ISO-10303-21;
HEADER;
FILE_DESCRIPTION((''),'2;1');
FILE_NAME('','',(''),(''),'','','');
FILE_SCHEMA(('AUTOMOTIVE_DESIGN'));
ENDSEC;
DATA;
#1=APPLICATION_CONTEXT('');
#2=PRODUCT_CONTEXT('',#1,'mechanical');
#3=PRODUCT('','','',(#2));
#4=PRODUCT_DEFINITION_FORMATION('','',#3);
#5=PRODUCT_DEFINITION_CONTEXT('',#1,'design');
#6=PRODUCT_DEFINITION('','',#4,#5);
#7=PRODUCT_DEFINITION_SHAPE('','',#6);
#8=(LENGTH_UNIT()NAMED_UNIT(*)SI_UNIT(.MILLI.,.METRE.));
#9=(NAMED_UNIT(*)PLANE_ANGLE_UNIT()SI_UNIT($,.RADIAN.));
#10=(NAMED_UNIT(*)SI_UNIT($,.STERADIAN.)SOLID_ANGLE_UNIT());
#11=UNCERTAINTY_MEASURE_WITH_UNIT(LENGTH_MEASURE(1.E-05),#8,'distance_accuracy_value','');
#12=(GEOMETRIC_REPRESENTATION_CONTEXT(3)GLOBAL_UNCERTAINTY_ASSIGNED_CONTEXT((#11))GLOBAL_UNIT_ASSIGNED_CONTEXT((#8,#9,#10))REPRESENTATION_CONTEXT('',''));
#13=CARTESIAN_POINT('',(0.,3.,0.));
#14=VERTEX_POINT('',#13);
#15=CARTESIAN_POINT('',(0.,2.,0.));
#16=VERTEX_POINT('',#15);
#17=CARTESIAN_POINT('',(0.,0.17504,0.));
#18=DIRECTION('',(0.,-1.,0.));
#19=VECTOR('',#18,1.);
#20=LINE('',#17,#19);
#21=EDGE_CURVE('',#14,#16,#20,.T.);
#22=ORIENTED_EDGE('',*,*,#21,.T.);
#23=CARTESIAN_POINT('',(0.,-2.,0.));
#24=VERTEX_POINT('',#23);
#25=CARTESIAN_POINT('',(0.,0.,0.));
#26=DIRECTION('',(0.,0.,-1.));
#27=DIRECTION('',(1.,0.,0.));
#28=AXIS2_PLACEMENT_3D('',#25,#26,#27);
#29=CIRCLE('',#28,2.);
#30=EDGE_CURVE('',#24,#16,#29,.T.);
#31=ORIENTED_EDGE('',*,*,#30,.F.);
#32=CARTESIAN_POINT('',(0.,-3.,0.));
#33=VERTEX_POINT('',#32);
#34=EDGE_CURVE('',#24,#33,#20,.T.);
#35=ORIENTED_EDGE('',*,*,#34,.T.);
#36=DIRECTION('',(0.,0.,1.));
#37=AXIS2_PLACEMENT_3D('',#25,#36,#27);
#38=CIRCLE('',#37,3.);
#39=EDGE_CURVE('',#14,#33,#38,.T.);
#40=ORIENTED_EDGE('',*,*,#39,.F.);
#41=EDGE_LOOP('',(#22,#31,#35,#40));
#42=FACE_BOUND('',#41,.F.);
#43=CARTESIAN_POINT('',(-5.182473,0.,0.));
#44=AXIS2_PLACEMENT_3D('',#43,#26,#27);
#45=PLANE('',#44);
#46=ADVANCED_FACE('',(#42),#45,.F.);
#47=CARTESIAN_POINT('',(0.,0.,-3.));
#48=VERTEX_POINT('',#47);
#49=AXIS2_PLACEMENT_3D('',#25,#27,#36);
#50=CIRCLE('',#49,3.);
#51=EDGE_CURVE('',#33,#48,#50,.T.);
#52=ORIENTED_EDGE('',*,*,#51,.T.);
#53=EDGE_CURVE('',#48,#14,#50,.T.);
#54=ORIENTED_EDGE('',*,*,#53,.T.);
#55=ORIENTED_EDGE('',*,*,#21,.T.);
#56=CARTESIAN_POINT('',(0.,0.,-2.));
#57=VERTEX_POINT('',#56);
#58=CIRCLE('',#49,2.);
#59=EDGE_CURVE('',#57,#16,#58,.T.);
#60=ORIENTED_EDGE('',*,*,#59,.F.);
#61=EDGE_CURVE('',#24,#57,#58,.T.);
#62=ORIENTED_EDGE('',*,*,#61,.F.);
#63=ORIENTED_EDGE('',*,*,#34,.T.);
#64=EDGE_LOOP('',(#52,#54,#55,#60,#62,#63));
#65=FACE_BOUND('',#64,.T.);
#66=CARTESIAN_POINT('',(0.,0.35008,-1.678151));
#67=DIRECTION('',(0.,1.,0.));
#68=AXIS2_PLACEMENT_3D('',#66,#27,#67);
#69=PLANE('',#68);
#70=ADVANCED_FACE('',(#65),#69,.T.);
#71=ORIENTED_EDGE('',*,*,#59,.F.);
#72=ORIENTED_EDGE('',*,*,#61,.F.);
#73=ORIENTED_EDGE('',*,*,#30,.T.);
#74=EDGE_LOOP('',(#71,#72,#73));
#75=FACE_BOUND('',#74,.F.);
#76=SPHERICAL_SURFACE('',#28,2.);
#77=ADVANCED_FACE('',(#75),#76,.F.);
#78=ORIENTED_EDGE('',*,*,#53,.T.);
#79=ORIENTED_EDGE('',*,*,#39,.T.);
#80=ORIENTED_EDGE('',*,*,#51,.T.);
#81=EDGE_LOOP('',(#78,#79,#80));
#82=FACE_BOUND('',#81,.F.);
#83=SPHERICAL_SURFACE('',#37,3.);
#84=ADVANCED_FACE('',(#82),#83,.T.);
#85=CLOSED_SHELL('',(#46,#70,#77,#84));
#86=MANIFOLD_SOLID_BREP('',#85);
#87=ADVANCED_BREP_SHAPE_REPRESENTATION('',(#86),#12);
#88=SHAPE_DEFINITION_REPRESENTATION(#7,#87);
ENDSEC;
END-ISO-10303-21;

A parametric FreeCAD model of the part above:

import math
import FreeCAD as App
import Part
import Sketcher

V = App.Vector
Q = App.Units.Quantity


def add_polygon(sketch, points):
    """Adds a closed chain of lines whose ends are joined by coincident constraints."""
    first, n = sketch.GeometryCount, len(points)
    for a, b in zip(points, points[1:] + points[:1]):
        sketch.addGeometry(Part.LineSegment(App.Vector(*a, 0), App.Vector(*b, 0)), False)
    for i in range(n):
        sketch.addConstraint(Sketcher.Constraint("Coincident", first + i, 2, first + (i + 1) % n, 1))

doc = App.newDocument("Part")
params = doc.addObject("Spreadsheet::Sheet", "Params")
for row, (alias, value) in enumerate([
    ("sketch1_radius", "3 mm"),
    ("sketch1_radius2", "2 mm"),
    ("revolution_angle", "360 deg"),
    ("pocket1_length", "25 mm"),
    ("pocket2_length", "25 mm"),
], start=1):
    params.set(f"A{row}", alias)
    params.set(f"B{row}", "=" + value)
    params.setAlias(f"B{row}", alias)

body = doc.addObject("PartDesign::Body", "Body")

sketch1 = body.newObject("Sketcher::SketchObject", "Sketch")
sketch1.AttachmentSupport = (doc.getObject("XZ_Plane"), [""])
sketch1.MapMode = "FlatFace"
sketch1.addGeometry([
    Part.LineSegment(V(0, -2, 0), V(0, -3, 0)),
    Part.ArcOfCircle(Part.Circle(V(0, 0, 0), V(0, 0, 1), 3), math.radians(-90), math.radians(90)),
    Part.LineSegment(V(0, 3, 0), V(0, 2, 0)),
    Part.ArcOfCircle(Part.Circle(V(0, 0, 0), V(0, 0, 1), 2), math.radians(-90), math.radians(90)),
], False)
sketch1.addConstraint([
    Sketcher.Constraint("Coincident", 0, 2, 1, 1),
    Sketcher.Constraint("Coincident", 1, 2, 2, 1),
    Sketcher.Constraint("Coincident", 2, 2, 3, 2),
    Sketcher.Constraint("Coincident", 3, 1, 0, 1),
    Sketcher.Constraint("Vertical", 0),
    Sketcher.Constraint("Vertical", 2),
    Sketcher.Constraint("Coincident", 1, 3, -1, 1),
    Sketcher.Constraint("Coincident", 3, 3, -1, 1),
    Sketcher.Constraint("PointOnObject", 0, 2, -2),
    Sketcher.Constraint("PointOnObject", 1, 2, -2),
    Sketcher.Constraint("Radius", 1, Q("3 mm")),
    Sketcher.Constraint("Radius", 3, Q("2 mm")),
])
sketch1.setExpression("Constraints[10]", "Params.sketch1_radius")
sketch1.setExpression("Constraints[11]", "Params.sketch1_radius2")
revolution = body.newObject("PartDesign::Revolution", "Revolution")
revolution.Profile = sketch1
revolution.ReferenceAxis = (sketch1, ["V_Axis"])
revolution.setExpression("Angle", "Params.revolution_angle")

sketch2 = body.newObject("Sketcher::SketchObject", "Sketch001")
sketch2.AttachmentSupport = (doc.getObject("XZ_Plane"), [""])
sketch2.MapMode = "FlatFace"
add_polygon(sketch2, [(-5.2, 3.6), (-5.2, 0), (6.5, 0), (6.5, 3.6)])
sketch2.addConstraint([
    Sketcher.Constraint("Vertical", 0),
    Sketcher.Constraint("Horizontal", 1),
    Sketcher.Constraint("Vertical", 2),
    Sketcher.Constraint("Horizontal", 3),
    Sketcher.Constraint("PointOnObject", 0, 2, -1),
    Sketcher.Constraint("DistanceY", 0, 2, 0, 1, Q("3.628718 mm")),
    Sketcher.Constraint("DistanceX", 1, 1, 1, 2, Q("11.701234 mm")),
    Sketcher.Constraint("DistanceX", -1, 1, 1, 2, Q("6.518761 mm")),
])
pocket1 = body.newObject("PartDesign::Pocket", "Pocket")
pocket1.Profile = sketch2
pocket1.setExpression("Length", "Params.pocket1_length")
pocket1.Midplane = True

sketch3 = body.newObject("Sketcher::SketchObject", "Sketch002")
sketch3.AttachmentSupport = (doc.getObject("YZ_Plane"), [""])
sketch3.MapMode = "FlatFace"
add_polygon(sketch3, [(-6, 2), (-6, -5), (7, -5), (7, 2)])
sketch3.addConstraint([
    Sketcher.Constraint("Vertical", 0),
    Sketcher.Constraint("Horizontal", 1),
    Sketcher.Constraint("Vertical", 2),
    Sketcher.Constraint("Horizontal", 3),
    Sketcher.Constraint("DistanceX", 1, 1, 1, 2, Q("13.054848 mm")),
    Sketcher.Constraint("DistanceY", 0, 2, 0, 1, Q("7.580234 mm")),
    Sketcher.Constraint("DistanceX", 0, 2, -1, 1, Q("6.177344 mm")),
    Sketcher.Constraint("DistanceY", 0, 2, -1, 1, Q("5.468268 mm")),
])
pocket2 = body.newObject("PartDesign::Pocket", "Pocket001")
pocket2.Profile = sketch3
pocket2.setExpression("Length", "Params.pocket2_length")
pocket2.Reversed = True

doc.recompute()
